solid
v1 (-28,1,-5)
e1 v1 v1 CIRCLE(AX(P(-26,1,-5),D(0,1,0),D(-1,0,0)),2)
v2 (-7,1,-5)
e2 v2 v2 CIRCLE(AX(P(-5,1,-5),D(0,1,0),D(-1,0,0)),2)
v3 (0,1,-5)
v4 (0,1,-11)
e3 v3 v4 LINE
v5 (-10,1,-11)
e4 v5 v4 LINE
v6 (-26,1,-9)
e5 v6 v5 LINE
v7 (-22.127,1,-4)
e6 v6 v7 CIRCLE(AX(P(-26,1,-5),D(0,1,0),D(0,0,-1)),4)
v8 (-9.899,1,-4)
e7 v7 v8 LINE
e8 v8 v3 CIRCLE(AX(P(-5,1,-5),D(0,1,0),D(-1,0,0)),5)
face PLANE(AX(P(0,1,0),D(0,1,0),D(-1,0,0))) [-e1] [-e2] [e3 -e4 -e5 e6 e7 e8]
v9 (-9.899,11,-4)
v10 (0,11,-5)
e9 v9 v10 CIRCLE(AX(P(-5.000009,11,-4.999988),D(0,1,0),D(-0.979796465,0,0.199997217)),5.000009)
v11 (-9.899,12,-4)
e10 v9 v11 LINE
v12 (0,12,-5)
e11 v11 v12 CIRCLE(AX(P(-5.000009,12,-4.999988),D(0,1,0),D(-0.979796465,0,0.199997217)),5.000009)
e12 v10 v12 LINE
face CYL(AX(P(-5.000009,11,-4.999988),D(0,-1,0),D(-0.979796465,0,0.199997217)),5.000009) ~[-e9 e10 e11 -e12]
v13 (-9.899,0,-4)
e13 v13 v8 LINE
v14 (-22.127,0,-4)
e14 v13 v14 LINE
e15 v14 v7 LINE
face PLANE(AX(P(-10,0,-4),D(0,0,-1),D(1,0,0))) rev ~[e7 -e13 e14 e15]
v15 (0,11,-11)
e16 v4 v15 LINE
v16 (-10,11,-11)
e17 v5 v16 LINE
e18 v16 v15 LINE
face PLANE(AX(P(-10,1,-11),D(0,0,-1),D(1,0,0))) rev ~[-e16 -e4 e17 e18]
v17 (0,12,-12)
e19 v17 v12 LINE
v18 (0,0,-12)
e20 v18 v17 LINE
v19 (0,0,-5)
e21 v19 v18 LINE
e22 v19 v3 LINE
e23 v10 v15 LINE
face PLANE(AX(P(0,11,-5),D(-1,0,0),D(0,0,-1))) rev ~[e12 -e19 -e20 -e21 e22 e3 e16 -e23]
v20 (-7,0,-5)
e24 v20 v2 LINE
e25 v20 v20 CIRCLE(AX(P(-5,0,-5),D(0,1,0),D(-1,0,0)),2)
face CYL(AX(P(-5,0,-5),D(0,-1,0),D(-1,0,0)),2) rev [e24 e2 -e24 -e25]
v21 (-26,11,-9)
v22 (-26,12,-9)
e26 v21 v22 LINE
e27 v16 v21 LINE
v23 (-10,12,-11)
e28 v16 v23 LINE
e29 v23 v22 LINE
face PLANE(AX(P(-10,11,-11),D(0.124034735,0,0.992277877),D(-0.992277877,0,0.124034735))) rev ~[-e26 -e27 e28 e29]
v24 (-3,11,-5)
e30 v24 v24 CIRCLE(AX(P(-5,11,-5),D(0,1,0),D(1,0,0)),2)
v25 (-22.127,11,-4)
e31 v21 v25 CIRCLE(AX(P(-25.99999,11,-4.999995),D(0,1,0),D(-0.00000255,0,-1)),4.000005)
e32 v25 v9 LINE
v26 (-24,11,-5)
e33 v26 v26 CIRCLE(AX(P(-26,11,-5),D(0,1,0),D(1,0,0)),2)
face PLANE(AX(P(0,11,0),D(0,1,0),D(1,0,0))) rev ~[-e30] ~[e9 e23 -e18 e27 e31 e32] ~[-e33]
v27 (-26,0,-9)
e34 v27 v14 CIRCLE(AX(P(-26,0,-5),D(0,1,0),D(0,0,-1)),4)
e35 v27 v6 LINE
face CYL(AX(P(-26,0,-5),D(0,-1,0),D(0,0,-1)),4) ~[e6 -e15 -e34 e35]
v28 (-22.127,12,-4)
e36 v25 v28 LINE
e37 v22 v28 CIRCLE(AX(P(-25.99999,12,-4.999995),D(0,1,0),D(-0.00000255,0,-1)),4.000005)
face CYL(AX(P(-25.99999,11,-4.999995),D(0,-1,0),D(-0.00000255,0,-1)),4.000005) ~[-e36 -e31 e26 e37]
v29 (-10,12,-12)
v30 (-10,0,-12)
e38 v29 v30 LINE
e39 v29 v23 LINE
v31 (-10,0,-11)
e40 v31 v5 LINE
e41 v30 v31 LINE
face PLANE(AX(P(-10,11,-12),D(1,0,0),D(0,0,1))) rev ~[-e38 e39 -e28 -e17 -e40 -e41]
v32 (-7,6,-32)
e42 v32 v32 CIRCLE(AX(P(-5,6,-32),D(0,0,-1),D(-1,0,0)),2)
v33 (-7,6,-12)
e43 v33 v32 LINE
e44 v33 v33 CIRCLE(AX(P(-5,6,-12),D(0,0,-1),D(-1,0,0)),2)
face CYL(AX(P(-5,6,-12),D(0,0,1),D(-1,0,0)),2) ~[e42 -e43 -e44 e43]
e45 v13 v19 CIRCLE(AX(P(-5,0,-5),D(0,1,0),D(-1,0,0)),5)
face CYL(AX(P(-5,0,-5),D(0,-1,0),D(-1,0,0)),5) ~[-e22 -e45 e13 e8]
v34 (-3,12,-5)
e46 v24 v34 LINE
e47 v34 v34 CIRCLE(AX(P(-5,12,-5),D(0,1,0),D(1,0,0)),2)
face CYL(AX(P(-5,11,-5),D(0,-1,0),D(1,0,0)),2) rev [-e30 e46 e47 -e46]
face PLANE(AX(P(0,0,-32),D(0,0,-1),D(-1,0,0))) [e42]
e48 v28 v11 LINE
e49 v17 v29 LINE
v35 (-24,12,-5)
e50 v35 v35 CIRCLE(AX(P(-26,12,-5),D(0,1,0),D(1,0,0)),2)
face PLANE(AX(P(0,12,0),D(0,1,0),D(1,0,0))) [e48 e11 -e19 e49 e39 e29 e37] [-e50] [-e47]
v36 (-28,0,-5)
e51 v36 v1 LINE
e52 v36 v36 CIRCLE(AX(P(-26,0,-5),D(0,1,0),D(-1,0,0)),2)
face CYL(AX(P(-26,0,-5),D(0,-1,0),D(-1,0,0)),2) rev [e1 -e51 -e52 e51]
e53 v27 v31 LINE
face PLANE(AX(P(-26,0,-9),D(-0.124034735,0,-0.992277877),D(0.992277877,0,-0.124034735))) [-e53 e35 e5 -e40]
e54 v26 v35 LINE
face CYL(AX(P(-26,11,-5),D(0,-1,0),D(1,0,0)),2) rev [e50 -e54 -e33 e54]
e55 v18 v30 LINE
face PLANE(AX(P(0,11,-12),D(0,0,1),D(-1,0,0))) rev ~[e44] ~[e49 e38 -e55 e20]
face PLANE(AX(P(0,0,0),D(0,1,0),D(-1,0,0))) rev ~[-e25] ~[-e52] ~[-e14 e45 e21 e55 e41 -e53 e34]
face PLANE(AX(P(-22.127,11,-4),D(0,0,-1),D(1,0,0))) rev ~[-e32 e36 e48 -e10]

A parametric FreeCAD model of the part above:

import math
import FreeCAD as App
import Part
import Sketcher
from FreeCAD import Vector
Q = App.Units.Quantity


def add_polygon(sketch, points):
    """Adds a closed chain of lines whose ends are joined by coincident constraints."""
    first, n = sketch.GeometryCount, len(points)
    for a, b in zip(points, points[1:] + points[:1]):
        sketch.addGeometry(Part.LineSegment(App.Vector(*a, 0), App.Vector(*b, 0)), False)
    for i in range(n):
        sketch.addConstraint(Sketcher.Constraint("Coincident", first + i, 2, first + (i + 1) % n, 1))

doc = App.newDocument("Part")
params = doc.addObject("Spreadsheet::Sheet", "Params")
for row, (alias, value) in enumerate([
    ("sketch1_diameter", "4 mm"),
    ("sketch1_radius", "4 mm"),
    ("sketch1_radius2", "5 mm"),
    ("sketch1_width", "10 mm"),
    ("sketch1_height", "7 mm"),
    ("pad1_length", "1 mm"),
    ("sketch2_height", "1 mm"),
    ("sketch2_width", "10 mm"),
    ("pad2_length", "10 mm"),
    ("sketch3_diameter", "4 mm"),
    ("sketch3_radius", "4 mm"),
    ("sketch3_radius2", "5 mm"),
    ("sketch3_width", "10 mm"),
    ("sketch3_height", "7 mm"),
    ("pad3_length", "1 mm"),
    ("sketch4_diameter", "4 mm"),
    ("pad4_length", "20 mm"),
], start=1):
    params.set(f"A{row}", alias)
    params.set(f"B{row}", "=" + value)
    params.setAlias(f"B{row}", alias)

body = doc.addObject("PartDesign::Body", "Body")

sketch1 = body.newObject("Sketcher::SketchObject", "Sketch")
sketch1.AttachmentSupport = (doc.getObject("XZ_Plane"), [""])
sketch1.MapMode = "FlatFace"
sketch1.addGeometry([
    Part.LineSegment(Vector(0, -5, 0), Vector(0, -12, 0)),
    Part.LineSegment(Vector(0, -12, 0), Vector(-10, -12, 0)),
    Part.LineSegment(Vector(-10, -12, 0), Vector(-10, -11, 0)),
    Part.LineSegment(Vector(-10, -11, 0), Vector(-26, -9, 0)),
    Part.ArcOfCircle(Part.Circle(Vector(-26, -5, 0), Vector(0, 0, 1), 4), math.radians(14), math.radians(270)),
    Part.LineSegment(Vector(-22.1, -4, 0), Vector(-9.9, -4, 0)),
    Part.ArcOfCircle(Part.Circle(Vector(-5, -5, 0), Vector(0, 0, 1), 5), math.radians(0), math.radians(168)),
    Part.Circle(Vector(-5, -5, 0), Vector(0, 0, 1), 2),
    Part.Circle(Vector(-26, -5, 0), Vector(0, 0, 1), 2),
], False)
sketch1.addConstraint([
    Sketcher.Constraint("Coincident", 0, 2, 1, 1),
    Sketcher.Constraint("Coincident", 1, 2, 2, 1),
    Sketcher.Constraint("Coincident", 2, 2, 3, 1),
    Sketcher.Constraint("Coincident", 3, 2, 4, 2),
    Sketcher.Constraint("Coincident", 4, 1, 5, 1),
    Sketcher.Constraint("Coincident", 5, 2, 6, 2),
    Sketcher.Constraint("Tangent", 6, 1, 0, 1),
    Sketcher.Constraint("Vertical", 0),
    Sketcher.Constraint("Horizontal", 1),
    Sketcher.Constraint("Vertical", 2),
    Sketcher.Constraint("Horizontal", 5),
    Sketcher.Constraint("Coincident", 7, 3, 6, 3),
    Sketcher.Constraint("Coincident", 8, 3, 4, 3),
    Sketcher.Constraint("Equal", 7, 8),
    Sketcher.Constraint("PointOnObject", 0, 2, -2),
    Sketcher.Constraint("Horizontal", 4, 3, 6, 3),
    Sketcher.Constraint("Vertical", 8, 3, 3, 2),
    Sketcher.Constraint("Diameter", 7, Q("4 mm")),
    Sketcher.Constraint("Radius", 4, Q("4 mm")),
    Sketcher.Constraint("Radius", 6, Q("5 mm")),
    Sketcher.Constraint("DistanceX", 1, 2, 1, 1, Q("10 mm")),
    Sketcher.Constraint("DistanceY", 0, 2, 0, 1, Q("7 mm")),
    Sketcher.Constraint("DistanceY", 2, 1, 2, 2, Q("1 mm")),
    Sketcher.Constraint("DistanceY", 4, 3, -1, 1, Q("5 mm")),
    Sketcher.Constraint("DistanceY", 4, 1, -1, 1, Q("4 mm")),
    Sketcher.Constraint("DistanceX", 4, 3, -1, 1, Q("26 mm")),
])
sketch1.setExpression("Constraints[17]", "Params.sketch1_diameter")
sketch1.setExpression("Constraints[18]", "Params.sketch1_radius")
sketch1.setExpression("Constraints[19]", "Params.sketch1_radius2")
sketch1.setExpression("Constraints[20]", "Params.sketch1_width")
sketch1.setExpression("Constraints[21]", "Params.sketch1_height")
pad1 = body.newObject("PartDesign::Pad", "Pad")
pad1.Profile = sketch1
pad1.setExpression("Length", "Params.pad1_length")
pad1.Reversed = True

sketch2 = body.newObject("Sketcher::SketchObject", "Sketch001")
sketch2.AttachmentSupport = (doc.getObject("XZ_Plane"), [""])
sketch2.MapMode = "FlatFace"
sketch2.AttachmentOffset = App.Placement(Vector(0, 0, -1), App.Rotation())
add_polygon(sketch2, [(0, -11), (0, -12), (-10, -12), (-10, -11)])
sketch2.addConstraint([
    Sketcher.Constraint("Vertical", 0),
    Sketcher.Constraint("Horizontal", 1),
    Sketcher.Constraint("Vertical", 2),
    Sketcher.Constraint("Horizontal", 3),
    Sketcher.Constraint("PointOnObject", 0, 2, -2),
    Sketcher.Constraint("DistanceY", 0, 2, 0, 1, Q("1 mm")),
    Sketcher.Constraint("DistanceX", 1, 2, 1, 1, Q("10 mm")),
    Sketcher.Constraint("DistanceY", 0, 2, -1, 1, Q("12 mm")),
])
sketch2.setExpression("Constraints[9]", "Params.sketch2_height")
sketch2.setExpression("Constraints[10]", "Params.sketch2_width")
pad2 = body.newObject("PartDesign::Pad", "Pad001")
pad2.Profile = sketch2
pad2.setExpression("Length", "Params.pad2_length")
pad2.Reversed = True

sketch3 = body.newObject("Sketcher::SketchObject", "Sketch002")
sketch3.AttachmentSupport = (doc.getObject("XZ_Plane"), [""])
sketch3.MapMode = "FlatFace"
sketch3.AttachmentOffset = App.Placement(Vector(0, 0, -11), App.Rotation())
sketch3.addGeometry([
    Part.ArcOfCircle(Part.Circle(Vector(-5, -5, 0), Vector(0, 0, 1), 5), math.radians(0), math.radians(168)),
    Part.LineSegment(Vector(0, -5, 0), Vector(0, -12, 0)),
    Part.LineSegment(Vector(0, -12, 0), Vector(-10, -12, 0)),
    Part.LineSegment(Vector(-10, -12, 0), Vector(-10, -11, 0)),
    Part.LineSegment(Vector(-10, -11, 0), Vector(-26, -9, 0)),
    Part.ArcOfCircle(Part.Circle(Vector(-26, -5, 0), Vector(0, 0, 1), 4), math.radians(14), math.radians(270)),
    Part.LineSegment(Vector(-22.1, -4, 0), Vector(-9.9, -4, 0)),
    Part.Circle(Vector(-26, -5, 0), Vector(0, 0, 1), 2),
    Part.Circle(Vector(-5, -5, 0), Vector(0, 0, 1), 2),
], False)
sketch3.addConstraint([
    Sketcher.Constraint("Tangent", 0, 1, 1, 1),
    Sketcher.Constraint("Coincident", 1, 2, 2, 1),
    Sketcher.Constraint("Coincident", 2, 2, 3, 1),
    Sketcher.Constraint("Coincident", 3, 2, 4, 1),
    Sketcher.Constraint("Coincident", 4, 2, 5, 2),
    Sketcher.Constraint("Coincident", 5, 1, 6, 1),
    Sketcher.Constraint("Coincident", 6, 2, 0, 2),
    Sketcher.Constraint("Vertical", 1),
    Sketcher.Constraint("Horizontal", 2),
    Sketcher.Constraint("Vertical", 3),
    Sketcher.Constraint("Horizontal", 6),
    Sketcher.Constraint("Coincident", 7, 3, 5, 3),
    Sketcher.Constraint("Coincident", 8, 3, 0, 3),
    Sketcher.Constraint("Equal", 7, 8),
    Sketcher.Constraint("PointOnObject", 0, 1, -2),
    Sketcher.Constraint("Horizontal", 0, 3, 5, 3),
    Sketcher.Constraint("Vertical", 7, 3, 4, 2),
    Sketcher.Constraint("Diameter", 7, Q("4 mm")),
    Sketcher.Constraint("Radius", 5, Q("4 mm")),
    Sketcher.Constraint("DistanceY", 5, 1, -1, 1, Q("4 mm")),
    Sketcher.Constraint("Radius", 0, Q("5 mm")),
    Sketcher.Constraint("DistanceX", 2, 2, 2, 1, Q("10 mm")),
    Sketcher.Constraint("DistanceY", 1, 2, 1, 1, Q("7 mm")),
    Sketcher.Constraint("DistanceY", 3, 1, 3, 2, Q("1 mm")),
    Sketcher.Constraint("DistanceY", 0, 3, -1, 1, Q("5 mm")),
    Sketcher.Constraint("DistanceX", 5, 3, -1, 1, Q("26 mm")),
])
sketch3.setExpression("Constraints[17]", "Params.sketch3_diameter")
sketch3.setExpression("Constraints[18]", "Params.sketch3_radius")
sketch3.setExpression("Constraints[20]", "Params.sketch3_radius2")
sketch3.setExpression("Constraints[21]", "Params.sketch3_width")
sketch3.setExpression("Constraints[22]", "Params.sketch3_height")
pad3 = body.newObject("PartDesign::Pad", "Pad002")
pad3.Profile = sketch3
pad3.setExpression("Length", "Params.pad3_length")
pad3.Reversed = True

sketch4 = body.newObject("Sketcher::SketchObject", "Sketch003")
sketch4.AttachmentSupport = (doc.getObject("XY_Plane"), [""])
sketch4.MapMode = "FlatFace"
sketch4.AttachmentOffset = App.Placement(Vector(0, 0, -12), App.Rotation())
sketch4.addGeometry(Part.Circle(Vector(-5, 6, 0), Vector(0, 0, 1), 2), False)
sketch4.addConstraint([
    Sketcher.Constraint("Diameter", 0, Q("4 mm")),
    Sketcher.Constraint("DistanceX", 0, 3, -1, 1, Q("5 mm")),
    Sketcher.Constraint("DistanceY", -1, 1, 0, 3, Q("6 mm")),
])
sketch4.setExpression("Constraints[0]", "Params.sketch4_diameter")
pad4 = body.newObject("PartDesign::Pad", "Pad003")
pad4.Profile = sketch4
pad4.setExpression("Length", "Params.pad4_length")
pad4.Reversed = True

doc.recompute()
